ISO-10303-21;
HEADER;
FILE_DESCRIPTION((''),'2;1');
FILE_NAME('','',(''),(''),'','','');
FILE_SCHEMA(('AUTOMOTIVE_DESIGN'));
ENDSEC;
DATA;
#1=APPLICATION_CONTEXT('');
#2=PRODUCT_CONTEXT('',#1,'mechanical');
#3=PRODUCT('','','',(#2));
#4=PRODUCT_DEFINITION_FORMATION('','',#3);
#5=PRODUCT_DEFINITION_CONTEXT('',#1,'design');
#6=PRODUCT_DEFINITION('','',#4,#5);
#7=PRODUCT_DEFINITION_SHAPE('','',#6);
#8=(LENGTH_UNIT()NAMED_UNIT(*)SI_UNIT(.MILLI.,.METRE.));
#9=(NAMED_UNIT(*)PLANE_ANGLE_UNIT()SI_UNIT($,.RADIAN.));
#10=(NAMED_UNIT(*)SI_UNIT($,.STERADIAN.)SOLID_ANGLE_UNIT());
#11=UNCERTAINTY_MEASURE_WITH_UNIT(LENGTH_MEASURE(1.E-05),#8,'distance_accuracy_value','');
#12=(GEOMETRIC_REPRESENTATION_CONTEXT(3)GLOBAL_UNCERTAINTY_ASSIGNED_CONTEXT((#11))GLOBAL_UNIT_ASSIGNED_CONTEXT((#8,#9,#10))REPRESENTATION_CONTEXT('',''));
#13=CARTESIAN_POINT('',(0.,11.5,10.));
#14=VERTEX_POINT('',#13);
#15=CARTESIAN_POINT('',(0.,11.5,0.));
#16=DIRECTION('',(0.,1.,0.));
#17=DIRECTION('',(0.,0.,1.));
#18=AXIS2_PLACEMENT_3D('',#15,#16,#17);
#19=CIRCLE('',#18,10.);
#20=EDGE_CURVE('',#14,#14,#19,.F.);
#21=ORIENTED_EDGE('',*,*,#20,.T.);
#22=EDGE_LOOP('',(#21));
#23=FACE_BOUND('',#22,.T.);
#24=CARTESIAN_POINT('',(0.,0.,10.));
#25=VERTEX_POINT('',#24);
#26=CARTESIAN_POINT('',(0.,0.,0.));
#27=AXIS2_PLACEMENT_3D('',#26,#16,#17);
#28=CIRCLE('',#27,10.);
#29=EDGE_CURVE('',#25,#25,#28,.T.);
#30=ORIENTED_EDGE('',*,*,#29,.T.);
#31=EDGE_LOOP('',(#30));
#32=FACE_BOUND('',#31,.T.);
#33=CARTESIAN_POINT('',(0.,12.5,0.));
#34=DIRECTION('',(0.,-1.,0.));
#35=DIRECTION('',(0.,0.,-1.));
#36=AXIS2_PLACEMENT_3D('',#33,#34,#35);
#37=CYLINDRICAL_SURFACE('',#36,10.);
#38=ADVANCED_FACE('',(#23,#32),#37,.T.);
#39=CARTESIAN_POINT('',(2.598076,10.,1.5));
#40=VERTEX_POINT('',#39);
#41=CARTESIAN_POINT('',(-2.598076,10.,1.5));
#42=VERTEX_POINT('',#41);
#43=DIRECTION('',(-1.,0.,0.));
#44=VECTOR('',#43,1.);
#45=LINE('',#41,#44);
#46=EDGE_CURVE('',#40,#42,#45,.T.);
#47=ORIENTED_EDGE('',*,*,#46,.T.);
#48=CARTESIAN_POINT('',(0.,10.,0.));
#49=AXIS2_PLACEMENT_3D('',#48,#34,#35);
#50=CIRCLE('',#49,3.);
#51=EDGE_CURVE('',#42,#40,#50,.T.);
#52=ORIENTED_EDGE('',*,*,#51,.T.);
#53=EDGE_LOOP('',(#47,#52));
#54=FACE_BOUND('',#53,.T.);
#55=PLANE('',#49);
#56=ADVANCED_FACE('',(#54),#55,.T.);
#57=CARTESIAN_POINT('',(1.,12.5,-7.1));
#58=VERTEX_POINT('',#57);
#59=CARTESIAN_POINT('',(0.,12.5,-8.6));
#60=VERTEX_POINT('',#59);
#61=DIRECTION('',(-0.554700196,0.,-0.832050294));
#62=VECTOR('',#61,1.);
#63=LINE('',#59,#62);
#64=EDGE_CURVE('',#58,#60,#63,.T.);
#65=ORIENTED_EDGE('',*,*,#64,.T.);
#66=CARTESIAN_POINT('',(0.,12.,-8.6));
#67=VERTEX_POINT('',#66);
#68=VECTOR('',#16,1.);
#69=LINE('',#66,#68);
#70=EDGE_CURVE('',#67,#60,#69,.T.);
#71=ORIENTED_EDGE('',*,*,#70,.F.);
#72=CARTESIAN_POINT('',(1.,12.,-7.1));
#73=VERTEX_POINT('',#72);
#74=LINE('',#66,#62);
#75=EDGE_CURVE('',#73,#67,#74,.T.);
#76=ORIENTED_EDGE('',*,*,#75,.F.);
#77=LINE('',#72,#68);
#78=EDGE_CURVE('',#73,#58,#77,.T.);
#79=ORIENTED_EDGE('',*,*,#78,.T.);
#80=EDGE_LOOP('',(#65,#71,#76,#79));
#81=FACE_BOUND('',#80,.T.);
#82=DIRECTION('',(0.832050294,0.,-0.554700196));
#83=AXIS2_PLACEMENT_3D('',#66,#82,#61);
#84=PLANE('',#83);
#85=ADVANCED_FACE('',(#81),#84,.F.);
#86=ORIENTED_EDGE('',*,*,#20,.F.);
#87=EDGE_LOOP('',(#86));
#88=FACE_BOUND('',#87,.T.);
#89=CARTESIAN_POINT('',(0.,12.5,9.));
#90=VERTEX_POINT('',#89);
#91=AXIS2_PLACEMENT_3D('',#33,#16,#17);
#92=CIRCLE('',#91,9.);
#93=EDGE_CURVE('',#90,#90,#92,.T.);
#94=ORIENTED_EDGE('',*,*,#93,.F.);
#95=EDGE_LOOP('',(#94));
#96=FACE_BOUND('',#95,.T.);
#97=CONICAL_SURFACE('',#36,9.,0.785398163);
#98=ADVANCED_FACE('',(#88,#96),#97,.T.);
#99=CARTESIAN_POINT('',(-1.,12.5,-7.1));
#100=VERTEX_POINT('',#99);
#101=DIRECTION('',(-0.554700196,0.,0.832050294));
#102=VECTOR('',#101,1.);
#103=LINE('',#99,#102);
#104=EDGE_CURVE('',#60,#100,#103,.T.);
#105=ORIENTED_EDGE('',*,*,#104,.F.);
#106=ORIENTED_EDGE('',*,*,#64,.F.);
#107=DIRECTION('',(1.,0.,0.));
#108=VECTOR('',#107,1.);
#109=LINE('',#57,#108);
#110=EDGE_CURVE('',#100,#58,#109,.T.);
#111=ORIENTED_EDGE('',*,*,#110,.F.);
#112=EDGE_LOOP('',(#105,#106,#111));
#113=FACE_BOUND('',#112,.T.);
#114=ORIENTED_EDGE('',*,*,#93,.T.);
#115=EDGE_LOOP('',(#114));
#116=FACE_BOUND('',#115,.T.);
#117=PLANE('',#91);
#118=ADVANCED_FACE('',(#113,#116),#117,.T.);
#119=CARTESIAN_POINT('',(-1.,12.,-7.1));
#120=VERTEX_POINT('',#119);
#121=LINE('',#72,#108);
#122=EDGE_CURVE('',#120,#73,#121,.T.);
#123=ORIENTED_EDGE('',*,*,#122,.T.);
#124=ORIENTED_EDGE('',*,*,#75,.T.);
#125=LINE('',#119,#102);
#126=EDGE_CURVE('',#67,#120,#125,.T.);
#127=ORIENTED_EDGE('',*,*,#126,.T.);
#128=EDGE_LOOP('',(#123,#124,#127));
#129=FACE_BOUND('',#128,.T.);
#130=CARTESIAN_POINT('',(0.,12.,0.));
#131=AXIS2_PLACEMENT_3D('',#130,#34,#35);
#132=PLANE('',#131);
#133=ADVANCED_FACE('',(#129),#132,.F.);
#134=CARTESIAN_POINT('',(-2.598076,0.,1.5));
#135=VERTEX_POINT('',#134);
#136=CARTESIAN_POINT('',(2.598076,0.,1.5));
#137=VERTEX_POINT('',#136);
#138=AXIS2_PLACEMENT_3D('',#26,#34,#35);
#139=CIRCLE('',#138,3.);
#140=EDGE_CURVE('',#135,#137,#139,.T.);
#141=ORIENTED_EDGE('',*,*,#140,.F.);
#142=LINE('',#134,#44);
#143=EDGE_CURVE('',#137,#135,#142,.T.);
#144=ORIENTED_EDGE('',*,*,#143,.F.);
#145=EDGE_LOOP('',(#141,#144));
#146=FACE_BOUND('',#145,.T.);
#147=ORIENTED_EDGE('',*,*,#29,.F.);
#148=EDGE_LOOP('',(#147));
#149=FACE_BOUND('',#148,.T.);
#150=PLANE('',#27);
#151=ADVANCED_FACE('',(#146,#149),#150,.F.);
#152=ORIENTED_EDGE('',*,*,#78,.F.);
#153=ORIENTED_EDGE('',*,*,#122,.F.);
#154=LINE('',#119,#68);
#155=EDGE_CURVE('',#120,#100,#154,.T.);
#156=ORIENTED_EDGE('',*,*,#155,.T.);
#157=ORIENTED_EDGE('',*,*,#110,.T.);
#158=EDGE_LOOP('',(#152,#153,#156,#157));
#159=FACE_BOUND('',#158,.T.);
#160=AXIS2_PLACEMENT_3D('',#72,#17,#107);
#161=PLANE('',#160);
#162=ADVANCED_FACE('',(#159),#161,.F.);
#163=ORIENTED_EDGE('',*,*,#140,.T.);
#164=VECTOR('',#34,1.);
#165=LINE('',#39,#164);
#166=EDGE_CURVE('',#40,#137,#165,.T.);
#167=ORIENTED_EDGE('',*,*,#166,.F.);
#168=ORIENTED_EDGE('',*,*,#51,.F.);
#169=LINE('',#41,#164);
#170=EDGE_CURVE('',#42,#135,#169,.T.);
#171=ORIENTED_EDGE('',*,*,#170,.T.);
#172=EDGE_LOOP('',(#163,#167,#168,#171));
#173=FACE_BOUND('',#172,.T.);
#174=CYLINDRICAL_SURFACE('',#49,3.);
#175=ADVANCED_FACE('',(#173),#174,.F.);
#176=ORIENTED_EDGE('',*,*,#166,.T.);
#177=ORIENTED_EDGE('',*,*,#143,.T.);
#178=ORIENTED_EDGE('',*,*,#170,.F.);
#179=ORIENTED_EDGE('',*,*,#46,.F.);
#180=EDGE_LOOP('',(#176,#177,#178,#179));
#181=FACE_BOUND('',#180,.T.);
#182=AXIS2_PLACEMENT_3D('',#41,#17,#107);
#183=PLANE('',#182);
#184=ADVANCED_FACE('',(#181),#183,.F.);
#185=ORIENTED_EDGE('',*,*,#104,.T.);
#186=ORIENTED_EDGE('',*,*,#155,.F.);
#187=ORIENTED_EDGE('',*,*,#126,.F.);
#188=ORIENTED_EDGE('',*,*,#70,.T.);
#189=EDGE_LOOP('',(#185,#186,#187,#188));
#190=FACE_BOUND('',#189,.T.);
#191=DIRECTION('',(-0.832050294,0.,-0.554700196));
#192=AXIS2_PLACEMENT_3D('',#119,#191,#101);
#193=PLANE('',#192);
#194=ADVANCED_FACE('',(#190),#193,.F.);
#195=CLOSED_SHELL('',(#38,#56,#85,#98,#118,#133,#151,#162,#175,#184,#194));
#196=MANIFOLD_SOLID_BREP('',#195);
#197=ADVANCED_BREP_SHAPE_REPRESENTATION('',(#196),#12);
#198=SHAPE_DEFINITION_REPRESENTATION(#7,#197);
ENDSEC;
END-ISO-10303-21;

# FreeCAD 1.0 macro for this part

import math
import FreeCAD as App
import Part
import Sketcher


def edges_at(feature, points):
    """Names of the edges that pass closest to the given points."""
    edges = feature.Shape.Edges
    near = lambda p: min(range(len(edges)), key=lambda i: edges[i].distToShape(Part.Vertex(*p))[0])
    return sorted({f"Edge{near(p) + 1}" for p in points})


def add_polygon(sketch, points):
    """Adds a closed chain of lines whose ends are joined by coincident constraints."""
    first, n = sketch.GeometryCount, len(points)
    for a, b in zip(points, points[1:] + points[:1]):
        sketch.addGeometry(Part.LineSegment(App.Vector(*a, 0), App.Vector(*b, 0)), False)
    for i in range(n):
        sketch.addConstraint(Sketcher.Constraint("Coincident", first + i, 2, first + (i + 1) % n, 1))

doc = App.newDocument("Part")
body = doc.addObject("PartDesign::Body", "Body")

sketch1 = body.newObject("Sketcher::SketchObject", "Sketch")
sketch1.AttachmentSupport = (doc.getObject("XZ_Plane"), [""])
sketch1.MapMode = "FlatFace"
sketch1.addGeometry(Part.Circle(App.Vector(0, 0, 0), App.Vector(0, 0, 1), 10), False)
sketch1.addConstraint(Sketcher.Constraint("Coincident", 0, 3, -1, 1))
sketch1.addConstraint(Sketcher.Constraint("Diameter", 0, 20.0))
pad1 = body.newObject("PartDesign::Pad", "Pad")
pad1.Profile = sketch1
pad1.Length = 12.5
pad1.Reversed = True

sketch2 = body.newObject("Sketcher::SketchObject", "Sketch001")
sketch2.AttachmentSupport = (doc.getObject("XZ_Plane"), [""])
sketch2.MapMode = "FlatFace"
sketch2.addGeometry(Part.LineSegment(App.Vector(2.598076, 1.5, 0), App.Vector(-2.598076, 1.5, 0)), False)
sketch2.addGeometry(Part.ArcOfCircle(Part.Circle(App.Vector(0, 0, 0), App.Vector(0, 0, 1), 3), math.radians(150), math.radians(390)), False)
sketch2.addConstraint(Sketcher.Constraint("Coincident", 0, 1, 1, 2))
sketch2.addConstraint(Sketcher.Constraint("Coincident", 1, 1, 0, 2))
sketch2.addConstraint(Sketcher.Constraint("Horizontal", 0))
sketch2.addConstraint(Sketcher.Constraint("Coincident", 1, 3, -1, 1))
sketch2.addConstraint(Sketcher.Constraint("Radius", 1, 3.0))
sketch2.addConstraint(Sketcher.Constraint("DistanceY", -1, 1, 0, 1, 1.5))
pocket1 = body.newObject("PartDesign::Pocket", "Pocket")
pocket1.Profile = sketch2
pocket1.Length = 10

sketch3 = body.newObject("Sketcher::SketchObject", "Sketch002")
sketch3.AttachmentSupport = (doc.getObject("XZ_Plane"), [""])
sketch3.MapMode = "FlatFace"
sketch3.AttachmentOffset = App.Placement(App.Vector(0, 0, -12.5), App.Rotation())
add_polygon(sketch3, [(0, -8.6), (-1, -7.1), (1, -7.1)])
sketch3.addConstraint(Sketcher.Constraint("Horizontal", 1))
sketch3.addConstraint(Sketcher.Constraint("PointOnObject", 2, 2, -2))
sketch3.addConstraint(Sketcher.Constraint("Equal", 0, 2))
sketch3.addConstraint(Sketcher.Constraint("DistanceX", 1, 1, 1, 2, 2.0))
sketch3.addConstraint(Sketcher.Constraint("DistanceY", 0, 2, -1, 1, 7.1))
sketch3.addConstraint(Sketcher.Constraint("DistanceY", 2, 2, -1, 1, 8.6))
pocket2 = body.newObject("PartDesign::Pocket", "Pocket001")
pocket2.Profile = sketch3
pocket2.Length = 0.5
pocket2.Reversed = True
doc.recompute()

chamfer = body.newObject("PartDesign::Chamfer", "Chamfer")
chamfer.Base = (pocket2, edges_at(pocket2, [(-10, 12.5, 0)]))
chamfer.Size = 1

doc.recompute()
